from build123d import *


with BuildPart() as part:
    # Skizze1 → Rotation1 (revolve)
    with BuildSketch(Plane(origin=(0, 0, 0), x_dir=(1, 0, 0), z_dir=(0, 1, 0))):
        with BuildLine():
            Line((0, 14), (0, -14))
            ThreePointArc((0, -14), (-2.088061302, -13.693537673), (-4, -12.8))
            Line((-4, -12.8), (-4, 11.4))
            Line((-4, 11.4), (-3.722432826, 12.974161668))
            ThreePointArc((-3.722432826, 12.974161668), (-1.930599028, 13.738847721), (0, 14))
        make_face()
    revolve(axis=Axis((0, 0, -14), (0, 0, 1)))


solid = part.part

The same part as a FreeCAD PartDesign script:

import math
import FreeCAD as App
import Part
import Sketcher
from FreeCAD import Vector
Q = App.Units.Quantity

doc = App.newDocument("Part")
params = doc.addObject("Spreadsheet::Sheet", "Params")
for row, (alias, value) in enumerate([
    ("sketch1_height", "28 mm"),
    ("sketch1_height2", "24.2 mm"),
    ("revolution_angle", "360 deg"),
], start=1):
    params.set(f"A{row}", alias)
    params.set(f"B{row}", "=" + value)
    params.setAlias(f"B{row}", alias)

body = doc.addObject("PartDesign::Body", "Body")

# Sketch on XZ plane
sketch1 = body.newObject("Sketcher::SketchObject", "Sketch")
sketch1.AttachmentSupport = (doc.getObject("XZ_Plane"), [""])
sketch1.MapMode = "FlatFace"
sketch1.addGeometry([
    Part.LineSegment(Vector(0, 14, 0), Vector(0, -14, 0)),  # 0
    Part.ArcOfCircle(Part.Circle(Vector(0, -6.7, 0), Vector(0, 0, 1), 7.3), math.radians(-121), math.radians(-90)),  # 1
    Part.LineSegment(Vector(-3.7, -13, 0), Vector(-4, -11.4, 0)),  # 2
    Part.LineSegment(Vector(-4, -11.4, 0), Vector(-4, 12.8, 0)),  # 3
    Part.ArcOfCircle(Part.Circle(Vector(0, 6.7, 0), Vector(0, 0, 1), 7.3), math.radians(90), math.radians(123)),  # 4
], False)
sketch1.addConstraint([
    Sketcher.Constraint("Coincident", 0, 2, 1, 2),
    Sketcher.Constraint("Coincident", 1, 1, 2, 1),
    Sketcher.Constraint("Coincident", 2, 2, 3, 1),
    Sketcher.Constraint("Coincident", 3, 2, 4, 2),
    Sketcher.Constraint("Coincident", 4, 1, 0, 1),
    Sketcher.Constraint("Vertical", 0),
    Sketcher.Constraint("Vertical", 3),
    Sketcher.Constraint("Equal", 1, 4),
    Sketcher.Constraint("Symmetric", 1, 3, 4, 3, -1, 1),
    Sketcher.Constraint("PointOnObject", 1, 3, -2),
    Sketcher.Constraint("PointOnObject", 0, 2, -2),
    Sketcher.Constraint("DistanceY", 0, 2, 0, 1, Q("28 mm")),
    Sketcher.Constraint("Angle", 2, Q("100 deg")),
    Sketcher.Constraint("DistanceY", 3, 1, 3, 2, Q("24.2 mm")),
    Sketcher.Constraint("DistanceX", 2, 2, -1, 1, Q("4 mm")),
    Sketcher.Constraint("DistanceY", 2, 2, -1, 1, Q("11.4 mm")),
])
sketch1.setExpression("Constraints[11]", "Params.sketch1_height")
sketch1.setExpression("Constraints[13]", "Params.sketch1_height2")
revolution = body.newObject("PartDesign::Revolution", "Revolution")
revolution.Profile = sketch1
revolution.ReferenceAxis = (sketch1, ["V_Axis"])
revolution.setExpression("Angle", "Params.revolution_angle")

doc.recompute()
